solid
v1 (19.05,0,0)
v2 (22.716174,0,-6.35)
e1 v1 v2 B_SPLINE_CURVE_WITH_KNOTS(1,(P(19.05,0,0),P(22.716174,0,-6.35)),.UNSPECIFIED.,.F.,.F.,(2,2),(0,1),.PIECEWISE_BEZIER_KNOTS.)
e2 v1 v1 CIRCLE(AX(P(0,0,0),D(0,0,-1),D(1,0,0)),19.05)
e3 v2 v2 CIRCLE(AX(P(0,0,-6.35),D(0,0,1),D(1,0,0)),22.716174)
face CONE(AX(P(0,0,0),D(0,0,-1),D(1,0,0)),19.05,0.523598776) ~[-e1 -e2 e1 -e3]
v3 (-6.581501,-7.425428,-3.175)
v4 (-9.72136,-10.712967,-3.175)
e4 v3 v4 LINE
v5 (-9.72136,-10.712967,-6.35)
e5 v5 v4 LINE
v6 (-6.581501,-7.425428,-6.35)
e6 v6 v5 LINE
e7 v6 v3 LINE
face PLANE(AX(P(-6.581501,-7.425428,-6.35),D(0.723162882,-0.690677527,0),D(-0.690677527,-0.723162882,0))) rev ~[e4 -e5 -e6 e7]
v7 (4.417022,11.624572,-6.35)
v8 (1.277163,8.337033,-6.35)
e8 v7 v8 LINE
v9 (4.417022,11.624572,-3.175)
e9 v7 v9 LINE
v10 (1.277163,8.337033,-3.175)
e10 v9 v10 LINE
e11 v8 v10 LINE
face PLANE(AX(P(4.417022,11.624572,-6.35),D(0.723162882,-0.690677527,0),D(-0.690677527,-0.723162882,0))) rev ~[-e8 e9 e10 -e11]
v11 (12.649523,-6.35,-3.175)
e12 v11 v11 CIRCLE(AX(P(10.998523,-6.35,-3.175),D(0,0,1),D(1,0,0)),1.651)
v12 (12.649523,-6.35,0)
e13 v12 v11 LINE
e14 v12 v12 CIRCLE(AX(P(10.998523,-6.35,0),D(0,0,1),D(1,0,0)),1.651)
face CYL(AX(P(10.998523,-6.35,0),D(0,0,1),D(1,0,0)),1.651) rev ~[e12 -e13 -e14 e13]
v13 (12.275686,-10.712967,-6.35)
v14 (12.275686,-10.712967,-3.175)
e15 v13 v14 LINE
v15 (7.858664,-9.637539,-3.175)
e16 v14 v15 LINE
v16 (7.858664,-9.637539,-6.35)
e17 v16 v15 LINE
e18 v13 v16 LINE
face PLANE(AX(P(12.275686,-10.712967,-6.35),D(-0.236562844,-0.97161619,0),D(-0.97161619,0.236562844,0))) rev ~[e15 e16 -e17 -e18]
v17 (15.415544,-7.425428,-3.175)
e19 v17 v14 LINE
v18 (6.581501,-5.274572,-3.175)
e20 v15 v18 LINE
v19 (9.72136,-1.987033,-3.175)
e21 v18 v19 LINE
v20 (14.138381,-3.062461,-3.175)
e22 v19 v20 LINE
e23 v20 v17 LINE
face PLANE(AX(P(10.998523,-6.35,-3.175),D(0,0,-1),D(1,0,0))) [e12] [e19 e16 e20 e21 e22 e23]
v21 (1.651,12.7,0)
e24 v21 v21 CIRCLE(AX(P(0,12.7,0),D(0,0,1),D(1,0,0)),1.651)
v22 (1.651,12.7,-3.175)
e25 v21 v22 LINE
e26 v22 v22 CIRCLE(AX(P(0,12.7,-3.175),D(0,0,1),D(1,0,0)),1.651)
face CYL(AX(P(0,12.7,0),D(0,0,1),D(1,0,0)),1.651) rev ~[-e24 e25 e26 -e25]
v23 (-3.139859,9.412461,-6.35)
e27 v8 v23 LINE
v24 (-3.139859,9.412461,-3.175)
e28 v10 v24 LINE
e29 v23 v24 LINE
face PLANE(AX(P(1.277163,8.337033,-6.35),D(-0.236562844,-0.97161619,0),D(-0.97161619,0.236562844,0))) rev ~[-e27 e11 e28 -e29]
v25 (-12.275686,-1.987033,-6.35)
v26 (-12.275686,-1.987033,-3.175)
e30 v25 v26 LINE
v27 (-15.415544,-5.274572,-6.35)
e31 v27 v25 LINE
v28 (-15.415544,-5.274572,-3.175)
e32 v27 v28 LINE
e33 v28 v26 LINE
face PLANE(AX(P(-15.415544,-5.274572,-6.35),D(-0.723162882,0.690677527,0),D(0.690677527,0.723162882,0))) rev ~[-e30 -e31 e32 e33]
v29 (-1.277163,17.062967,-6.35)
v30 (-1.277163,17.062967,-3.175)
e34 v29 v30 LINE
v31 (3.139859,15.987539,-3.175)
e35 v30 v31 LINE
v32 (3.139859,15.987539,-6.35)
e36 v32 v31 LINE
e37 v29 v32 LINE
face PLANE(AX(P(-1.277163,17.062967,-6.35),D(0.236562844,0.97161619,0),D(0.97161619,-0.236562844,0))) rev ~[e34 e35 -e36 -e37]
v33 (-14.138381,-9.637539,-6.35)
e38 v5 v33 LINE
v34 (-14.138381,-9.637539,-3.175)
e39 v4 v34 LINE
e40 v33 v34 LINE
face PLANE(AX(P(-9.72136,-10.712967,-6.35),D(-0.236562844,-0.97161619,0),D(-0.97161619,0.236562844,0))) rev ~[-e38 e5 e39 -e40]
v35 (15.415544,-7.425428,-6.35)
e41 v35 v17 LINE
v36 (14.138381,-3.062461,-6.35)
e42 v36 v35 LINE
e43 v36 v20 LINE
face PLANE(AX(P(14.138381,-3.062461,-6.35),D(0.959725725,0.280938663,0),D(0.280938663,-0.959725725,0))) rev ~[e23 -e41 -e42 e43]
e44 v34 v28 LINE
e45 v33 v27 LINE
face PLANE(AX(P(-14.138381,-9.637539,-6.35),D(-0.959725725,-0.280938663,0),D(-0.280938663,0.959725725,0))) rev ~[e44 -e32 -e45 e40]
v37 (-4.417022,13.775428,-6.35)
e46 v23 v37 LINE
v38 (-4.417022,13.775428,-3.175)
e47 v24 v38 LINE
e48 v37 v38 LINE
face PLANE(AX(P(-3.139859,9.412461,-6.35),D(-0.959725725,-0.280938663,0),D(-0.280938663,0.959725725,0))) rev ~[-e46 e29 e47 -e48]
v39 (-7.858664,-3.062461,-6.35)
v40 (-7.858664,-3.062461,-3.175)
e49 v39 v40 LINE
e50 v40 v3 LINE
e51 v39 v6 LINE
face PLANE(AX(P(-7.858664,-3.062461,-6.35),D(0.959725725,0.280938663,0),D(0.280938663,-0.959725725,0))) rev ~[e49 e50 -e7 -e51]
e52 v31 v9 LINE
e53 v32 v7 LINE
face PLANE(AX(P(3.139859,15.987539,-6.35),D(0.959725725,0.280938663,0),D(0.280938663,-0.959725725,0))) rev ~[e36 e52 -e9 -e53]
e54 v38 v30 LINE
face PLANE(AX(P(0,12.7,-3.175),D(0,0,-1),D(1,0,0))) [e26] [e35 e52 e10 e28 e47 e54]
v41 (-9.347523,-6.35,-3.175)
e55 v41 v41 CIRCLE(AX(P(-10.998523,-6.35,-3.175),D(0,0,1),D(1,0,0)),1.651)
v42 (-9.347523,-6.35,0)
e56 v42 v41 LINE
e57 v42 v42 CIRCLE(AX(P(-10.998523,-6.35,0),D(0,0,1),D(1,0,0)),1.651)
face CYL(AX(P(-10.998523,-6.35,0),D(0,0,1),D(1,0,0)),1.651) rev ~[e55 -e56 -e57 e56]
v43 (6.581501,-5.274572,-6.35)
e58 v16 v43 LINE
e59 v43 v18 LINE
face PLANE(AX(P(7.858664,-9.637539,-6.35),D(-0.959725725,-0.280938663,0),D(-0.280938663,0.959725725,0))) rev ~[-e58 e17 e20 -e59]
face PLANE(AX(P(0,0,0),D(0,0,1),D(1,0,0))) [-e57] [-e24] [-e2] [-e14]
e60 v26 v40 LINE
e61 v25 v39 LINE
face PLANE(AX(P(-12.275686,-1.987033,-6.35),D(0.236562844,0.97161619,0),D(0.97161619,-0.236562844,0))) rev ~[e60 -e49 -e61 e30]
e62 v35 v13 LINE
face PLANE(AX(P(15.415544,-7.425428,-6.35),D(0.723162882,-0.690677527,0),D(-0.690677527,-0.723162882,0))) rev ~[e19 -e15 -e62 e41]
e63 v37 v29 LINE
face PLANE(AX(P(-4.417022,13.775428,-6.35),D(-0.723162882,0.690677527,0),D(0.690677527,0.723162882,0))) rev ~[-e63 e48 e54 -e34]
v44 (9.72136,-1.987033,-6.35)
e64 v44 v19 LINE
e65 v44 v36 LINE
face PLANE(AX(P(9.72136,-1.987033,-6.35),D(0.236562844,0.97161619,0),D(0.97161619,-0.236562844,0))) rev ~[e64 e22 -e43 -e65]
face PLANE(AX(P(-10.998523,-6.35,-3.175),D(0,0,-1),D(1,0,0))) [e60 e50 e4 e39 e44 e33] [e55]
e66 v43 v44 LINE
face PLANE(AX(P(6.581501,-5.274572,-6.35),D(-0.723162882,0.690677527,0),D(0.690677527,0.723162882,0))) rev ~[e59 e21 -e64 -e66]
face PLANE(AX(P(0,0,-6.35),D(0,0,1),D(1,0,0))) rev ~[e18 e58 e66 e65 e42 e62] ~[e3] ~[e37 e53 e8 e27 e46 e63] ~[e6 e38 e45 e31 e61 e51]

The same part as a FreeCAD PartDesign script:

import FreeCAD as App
import Part
import Sketcher
from FreeCAD import Vector
Q = App.Units.Quantity

doc = App.newDocument("Part")
body = doc.addObject("PartDesign::Body", "Body")

# Sketch on XY plane
sketch1 = doc.addObject("Sketcher::SketchObject", "Sketch")
body.addObject(sketch1)
sketch1.AttachmentSupport = (doc.XY_Plane, [""])
sketch1.MapMode = "FlatFace"
sketch1.addGeometry(Part.Circle(Vector(0, 0, 0), Vector(0, 0, 1), 19.05), False)
sketch1.addConstraint([
    Sketcher.Constraint("Coincident", 0, 3, -1, 1),
    Sketcher.Constraint("Diameter", 0, Q("1.5 in")),
])
pad1 = doc.addObject("PartDesign::Pad", "Pad")
body.addObject(pad1)
pad1.Profile = sketch1
pad1.Length = Q("0.25 in")
pad1.Reversed = True
pad1.TaperAngle = 30

# Sketch on XY plane
sketch2 = doc.addObject("Sketcher::SketchObject", "Sketch001")
body.addObject(sketch2)
sketch2.AttachmentSupport = (doc.XY_Plane, [""])
sketch2.MapMode = "FlatFace"
sketch2.addGeometry([
    Part.Circle(Vector(0, 12.7, 0), Vector(0, 0, 1), 1.651),
    Part.Circle(Vector(-10.998523, -6.35, 0), Vector(0, 0, 1), 1.651),
    Part.Circle(Vector(10.998523, -6.35, 0), Vector(0, 0, 1), 1.651),
], False)
sketch2.addConstraint([
    Sketcher.Constraint("Equal", 0, 1),
    Sketcher.Constraint("Equal", 1, 2),
    Sketcher.Constraint("Symmetric", 1, 3, 2, 3, -2),
    Sketcher.Constraint("PointOnObject", 0, 3, -2),
    Sketcher.Constraint("Diameter", 0, Q("0.13 in")),
    Sketcher.Constraint("DistanceY", -1, 1, 0, 3, Q("0.5 in")),
    Sketcher.Constraint("DistanceY", 1, 3, -1, 1, Q("0.25 in")),
    Sketcher.Constraint("DistanceX", 1, 3, -1, 1, 10.998523),
])
pocket1 = doc.addObject("PartDesign::Pocket", "Pocket")
body.addObject(pocket1)
pocket1.Profile = sketch2
pocket1.Length = Q("1 in")

# Sketch on XY plane
sketch3 = doc.addObject("Sketcher::SketchObject", "Sketch002")
body.addObject(sketch3)
sketch3.AttachmentSupport = (doc.XY_Plane, [""])
sketch3.MapMode = "FlatFace"
sketch3.AttachmentOffset = App.Placement(Vector(0, 0, -0.25 * 25.4), App.Rotation())
sketch3.addGeometry([
    Part.LineSegment(Vector(4.417022, 11.624572, 0), Vector(1.277163, 8.337033, 0)),  # 0
    Part.LineSegment(Vector(1.277163, 8.337033, 0), Vector(-3.139859, 9.412461, 0)),  # 1
    Part.LineSegment(Vector(-3.139859, 9.412461, 0), Vector(-4.417022, 13.775428, 0)),  # 2
    Part.LineSegment(Vector(-4.417022, 13.775428, 0), Vector(-1.277163, 17.062967, 0)),  # 3
    Part.LineSegment(Vector(-1.277163, 17.062967, 0), Vector(3.139859, 15.987539, 0)),  # 4
    Part.LineSegment(Vector(3.139859, 15.987539, 0), Vector(4.417022, 11.624572, 0)),  # 5
    Part.LineSegment(Vector(9.72136, -1.987033, 0), Vector(14.138381, -3.062461, 0)),  # 6
    Part.LineSegment(Vector(14.138381, -3.062461, 0), Vector(15.415544, -7.425428, 0)),  # 7
    Part.LineSegment(Vector(15.415544, -7.425428, 0), Vector(12.275686, -10.712967, 0)),  # 8
    Part.LineSegment(Vector(12.275686, -10.712967, 0), Vector(7.858664, -9.637539, 0)),  # 9
    Part.LineSegment(Vector(7.858664, -9.637539, 0), Vector(6.581501, -5.274572, 0)),  # 10
    Part.LineSegment(Vector(6.581501, -5.274572, 0), Vector(9.72136, -1.987033, 0)),  # 11
    Part.LineSegment(Vector(-6.581501, -7.425428, 0), Vector(-9.72136, -10.712967, 0)),  # 12
    Part.LineSegment(Vector(-9.72136, -10.712967, 0), Vector(-14.138381, -9.637539, 0)),  # 13
    Part.LineSegment(Vector(-14.138381, -9.637539, 0), Vector(-15.415544, -5.274572, 0)),  # 14
    Part.LineSegment(Vector(-15.415544, -5.274572, 0), Vector(-12.275686, -1.987033, 0)),  # 15
    Part.LineSegment(Vector(-12.275686, -1.987033, 0), Vector(-7.858664, -3.062461, 0)),  # 16
    Part.LineSegment(Vector(-7.858664, -3.062461, 0), Vector(-6.581501, -7.425428, 0)),  # 17
], False)
sketch3.addConstraint([
    Sketcher.Constraint("Coincident", 0, 2, 1, 1),
    Sketcher.Constraint("Coincident", 1, 2, 2, 1),
    Sketcher.Constraint("Coincident", 2, 2, 3, 1),
    Sketcher.Constraint("Coincident", 3, 2, 4, 1),
    Sketcher.Constraint("Coincident", 4, 2, 5, 1),
    Sketcher.Constraint("Coincident", 5, 2, 0, 1),
    Sketcher.Constraint("Coincident", 6, 2, 7, 1),
    Sketcher.Constraint("Coincident", 7, 2, 8, 1),
    Sketcher.Constraint("Coincident", 8, 2, 9, 1),
    Sketcher.Constraint("Coincident", 9, 2, 10, 1),
    Sketcher.Constraint("Coincident", 10, 2, 11, 1),
    Sketcher.Constraint("Coincident", 11, 2, 6, 1),
    Sketcher.Constraint("Coincident", 12, 2, 13, 1),
    Sketcher.Constraint("Coincident", 13, 2, 14, 1),
    Sketcher.Constraint("Coincident", 14, 2, 15, 1),
    Sketcher.Constraint("Coincident", 15, 2, 16, 1),
    Sketcher.Constraint("Coincident", 16, 2, 17, 1),
    Sketcher.Constraint("Coincident", 17, 2, 12, 1),
    Sketcher.Constraint("Parallel", 0, 3),
    Sketcher.Constraint("Parallel", 1, 4),
    Sketcher.Constraint("Parallel", 2, 5),
    Sketcher.Constraint("Parallel", 4, 6),
    Sketcher.Constraint("Parallel", 5, 7),
    Sketcher.Constraint("Parallel", 3, 8),
    Sketcher.Constraint("Parallel", 6, 9),
    Sketcher.Constraint("Parallel", 7, 10),
    Sketcher.Constraint("Parallel", 8, 11),
    Sketcher.Constraint("Parallel", 11, 12),
    Sketcher.Constraint("Parallel", 9, 13),
    Sketcher.Constraint("Parallel", 10, 14),
    Sketcher.Constraint("Parallel", 12, 15),
    Sketcher.Constraint("Parallel", 13, 16),
    Sketcher.Constraint("Parallel", 14, 17),
    Sketcher.Constraint("Horizontal", 8, 2, 12, 2),
    Sketcher.Constraint("Horizontal", 9, 2, 13, 2),
    Sketcher.Constraint("Horizontal", 10, 2, 14, 2),
    Sketcher.Constraint("Horizontal", 11, 2, 15, 2),
    Sketcher.Constraint("Horizontal", 6, 2, 16, 2),
    Sketcher.Constraint("Equal", 0, 1),
    Sketcher.Constraint("Equal", 1, 2),
    Sketcher.Constraint("Equal", 2, 3),
    Sketcher.Constraint("Equal", 5, 6),
    Sketcher.Constraint("Equal", 6, 7),
    Sketcher.Constraint("Equal", 7, 8),
    Sketcher.Constraint("Equal", 8, 9),
    Sketcher.Constraint("DistanceY", 6, 2, 4, 2, Q("0.75 in")),
    Sketcher.Constraint("DistanceX", -1, 1, 10, 2, 6.581501),
    Sketcher.Constraint("DistanceX", 17, 2, -1, 1, 6.581501),
    Sketcher.Constraint("DistanceX", 0, 2, 9, 2, 6.581501),
    Sketcher.Constraint("DistanceX", 12, 2, 1, 2, 6.581501),
    Sketcher.Constraint("DistanceX", 1, 2, -1, 1, 3.139859),
    Sketcher.Constraint("DistanceY", -1, 1, 1, 2, 9.412461),
    Sketcher.Constraint("DistanceX", 2, 2, -1, 1, 4.417022),
    Sketcher.Constraint("DistanceY", -1, 1, 4, 2, 15.987539),
])
pocket2 = doc.addObject("PartDesign::Pocket", "Pocket001")
body.addObject(pocket2)
pocket2.Profile = sketch3
pocket2.Length = Q("0.125 in")
pocket2.Reversed = True

doc.recompute()
